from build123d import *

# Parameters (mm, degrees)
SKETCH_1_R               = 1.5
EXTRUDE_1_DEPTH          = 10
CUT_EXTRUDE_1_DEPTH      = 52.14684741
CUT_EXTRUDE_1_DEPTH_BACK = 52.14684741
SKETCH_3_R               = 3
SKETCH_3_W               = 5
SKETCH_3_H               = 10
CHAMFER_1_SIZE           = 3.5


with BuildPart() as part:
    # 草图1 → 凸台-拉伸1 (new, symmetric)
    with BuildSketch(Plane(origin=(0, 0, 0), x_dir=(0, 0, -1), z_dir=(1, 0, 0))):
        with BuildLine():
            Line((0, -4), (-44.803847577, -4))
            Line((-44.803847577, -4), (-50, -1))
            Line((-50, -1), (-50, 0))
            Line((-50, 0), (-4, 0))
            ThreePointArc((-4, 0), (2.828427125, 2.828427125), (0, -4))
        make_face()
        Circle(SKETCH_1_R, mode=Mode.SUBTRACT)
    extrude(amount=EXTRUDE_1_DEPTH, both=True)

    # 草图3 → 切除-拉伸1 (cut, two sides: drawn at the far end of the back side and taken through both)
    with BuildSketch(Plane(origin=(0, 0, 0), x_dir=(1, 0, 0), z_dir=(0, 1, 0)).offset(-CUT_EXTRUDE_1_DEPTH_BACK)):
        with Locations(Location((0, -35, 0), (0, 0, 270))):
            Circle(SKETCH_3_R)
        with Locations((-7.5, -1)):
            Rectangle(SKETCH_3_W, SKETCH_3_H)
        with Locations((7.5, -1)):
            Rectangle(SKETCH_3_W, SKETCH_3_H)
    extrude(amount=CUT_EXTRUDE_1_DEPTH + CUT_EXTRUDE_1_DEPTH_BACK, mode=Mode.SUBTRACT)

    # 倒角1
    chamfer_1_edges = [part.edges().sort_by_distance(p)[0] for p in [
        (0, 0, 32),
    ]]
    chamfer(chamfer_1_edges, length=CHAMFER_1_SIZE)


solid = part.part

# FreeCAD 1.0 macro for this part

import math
import FreeCAD as App
import Part
import Sketcher
from FreeCAD import Vector
Q = App.Units.Quantity


def edges_at(feature, points):
    """Names of the edges that pass closest to the given points."""
    edges = feature.Shape.Edges
    near = lambda p: min(range(len(edges)), key=lambda i: edges[i].distToShape(Part.Vertex(*p))[0])
    return sorted({f"Edge{near(p) + 1}" for p in points})

doc = App.newDocument("Part")
params = doc.addObject("Spreadsheet::Sheet", "Params")
for row, (alias, value) in enumerate([
    ("sketch1_diameter", "3 mm"),
    ("sketch1_radius", "4 mm"),
    ("sketch1_width", "1 mm"),
    ("sketch1_height", "46 mm"),
    ("pad1_length", "20 mm"),
    ("sketch2_diameter", "6 mm"),
    ("sketch2_width", "5 mm"),
    ("sketch2_height", "10 mm"),
    ("chamfer_size", "3.5 mm"),
], start=1):
    params.set(f"A{row}", alias)
    params.set(f"B{row}", "=" + value)
    params.setAlias(f"B{row}", alias)

body = doc.addObject("PartDesign::Body", "Body")

# Sketch on YZ plane
sketch1 = body.newObject("Sketcher::SketchObject", "Sketch")
sketch1.AttachmentSupport = (doc.getObject("YZ_Plane"), [""])
sketch1.MapMode = "FlatFace"
sketch1.addGeometry(Part.LineSegment(Vector(-4, 44.803848, 0), Vector(-4, 0, 0)), False)
sketch1.addGeometry(Part.ArcOfCircle(Part.Circle(Vector(0, 0, 0), Vector(0, 0, 1), 4), math.radians(180), math.radians(450)), False)
sketch1.addGeometry(Part.LineSegment(Vector(0, 4, 0), Vector(0, 50, 0)), False)
sketch1.addGeometry(Part.LineSegment(Vector(0, 50, 0), Vector(-1, 50, 0)), False)
sketch1.addGeometry(Part.LineSegment(Vector(-1, 50, 0), Vector(-4, 44.803848, 0)), False)
sketch1.addGeometry(Part.Circle(Vector(0, 0, 0), Vector(0, 0, 1), 1.5), False)
sketch1.addConstraint(Sketcher.Constraint("Tangent", 0, 2, 1, 1))
sketch1.addConstraint(Sketcher.Constraint("Coincident", 1, 2, 2, 1))
sketch1.addConstraint(Sketcher.Constraint("Coincident", 2, 2, 3, 1))
sketch1.addConstraint(Sketcher.Constraint("Coincident", 3, 2, 4, 1))
sketch1.addConstraint(Sketcher.Constraint("Coincident", 4, 2, 0, 1))
sketch1.addConstraint(Sketcher.Constraint("Vertical", 0))
sketch1.addConstraint(Sketcher.Constraint("Vertical", 2))
sketch1.addConstraint(Sketcher.Constraint("Horizontal", 3))
sketch1.addConstraint(Sketcher.Constraint("Coincident", 1, 3, -1, 1))
sketch1.addConstraint(Sketcher.Constraint("Coincident", 5, 3, -1, 1))
sketch1.addConstraint(Sketcher.Constraint("PointOnObject", 1, 2, -2))
sketch1.addConstraint(Sketcher.Constraint("Diameter", 5, Q("3 mm")))
sketch1.addConstraint(Sketcher.Constraint("Radius", 1, Q("4 mm")))
sketch1.addConstraint(Sketcher.Constraint("DistanceX", 3, 2, 3, 1, Q("1 mm")))
sketch1.addConstraint(Sketcher.Constraint("DistanceY", 2, 1, 2, 2, Q("46 mm")))
sketch1.addConstraint(Sketcher.Constraint("Angle", 4, Q("-120 deg")))
sketch1.setExpression("Constraints[11]", "Params.sketch1_diameter")
sketch1.setExpression("Constraints[12]", "Params.sketch1_radius")
sketch1.setExpression("Constraints[13]", "Params.sketch1_width")
sketch1.setExpression("Constraints[14]", "Params.sketch1_height")
pad1 = body.newObject("PartDesign::Pad", "Pad")
pad1.Profile = sketch1
pad1.setExpression("Length", "Params.pad1_length")
pad1.Midplane = True

# Sketch on XZ plane
sketch2 = body.newObject("Sketcher::SketchObject", "Sketch001")
sketch2.AttachmentSupport = (doc.getObject("XZ_Plane"), [""])
sketch2.MapMode = "FlatFace"
sketch2.addGeometry(Part.Circle(Vector(0, 35, 0), Vector(0, 0, 1), 3), False)
sketch2.addGeometry(Part.LineSegment(Vector(-10, -4, 0), Vector(-10, 6, 0)), False)
sketch2.addGeometry(Part.LineSegment(Vector(-10, 6, 0), Vector(-5, 6, 0)), False)
sketch2.addGeometry(Part.LineSegment(Vector(-5, 6, 0), Vector(-5, -4, 0)), False)
sketch2.addGeometry(Part.LineSegment(Vector(-5, -4, 0), Vector(-10, -4, 0)), False)
sketch2.addGeometry(Part.LineSegment(Vector(5, -4, 0), Vector(5, 6, 0)), False)
sketch2.addGeometry(Part.LineSegment(Vector(5, 6, 0), Vector(10, 6, 0)), False)
sketch2.addGeometry(Part.LineSegment(Vector(10, 6, 0), Vector(10, -4, 0)), False)
sketch2.addGeometry(Part.LineSegment(Vector(10, -4, 0), Vector(5, -4, 0)), False)
sketch2.addConstraint(Sketcher.Constraint("Coincident", 1, 2, 2, 1))
sketch2.addConstraint(Sketcher.Constraint("Coincident", 2, 2, 3, 1))
sketch2.addConstraint(Sketcher.Constraint("Coincident", 3, 2, 4, 1))
sketch2.addConstraint(Sketcher.Constraint("Coincident", 4, 2, 1, 1))
sketch2.addConstraint(Sketcher.Constraint("Coincident", 5, 2, 6, 1))
sketch2.addConstraint(Sketcher.Constraint("Coincident", 6, 2, 7, 1))
sketch2.addConstraint(Sketcher.Constraint("Coincident", 7, 2, 8, 1))
sketch2.addConstraint(Sketcher.Constraint("Coincident", 8, 2, 5, 1))
sketch2.addConstraint(Sketcher.Constraint("Vertical", 1))
sketch2.addConstraint(Sketcher.Constraint("Horizontal", 2))
sketch2.addConstraint(Sketcher.Constraint("Vertical", 3))
sketch2.addConstraint(Sketcher.Constraint("Horizontal", 4))
sketch2.addConstraint(Sketcher.Constraint("Vertical", 5))
sketch2.addConstraint(Sketcher.Constraint("Horizontal", 6))
sketch2.addConstraint(Sketcher.Constraint("Vertical", 7))
sketch2.addConstraint(Sketcher.Constraint("Horizontal", 8))
sketch2.addConstraint(Sketcher.Constraint("Symmetric", 2, 2, 5, 2, -2))
sketch2.addConstraint(Sketcher.Constraint("Symmetric", 4, 2, 7, 2, -2))
sketch2.addConstraint(Sketcher.Constraint("PointOnObject", 0, 3, -2))
sketch2.addConstraint(Sketcher.Constraint("Diameter", 0, Q("6 mm")))
sketch2.addConstraint(Sketcher.Constraint("DistanceX", 2, 1, 2, 2, Q("5 mm")))
sketch2.addConstraint(Sketcher.Constraint("DistanceY", 1, 1, 1, 2, Q("10 mm")))
sketch2.addConstraint(Sketcher.Constraint("DistanceY", -1, 1, 0, 3, Q("35 mm")))
sketch2.addConstraint(Sketcher.Constraint("DistanceX", 1, 2, -1, 1, Q("10 mm")))
sketch2.addConstraint(Sketcher.Constraint("DistanceY", -1, 1, 1, 2, Q("6 mm")))
sketch2.setExpression("Constraints[19]", "Params.sketch2_diameter")
sketch2.setExpression("Constraints[20]", "Params.sketch2_width")
sketch2.setExpression("Constraints[21]", "Params.sketch2_height")
pocket1 = body.newObject("PartDesign::Pocket", "Pocket")
pocket1.Profile = sketch2
pocket1.Type = "ThroughAll"
pocket1.Midplane = True
doc.recompute()

chamfer = body.newObject("PartDesign::Chamfer", "Chamfer")
chamfer.Base = (pocket1, edges_at(pocket1, [(0, 0, 32)]))
chamfer.setExpression("Size", "Params.chamfer_size")

doc.recompute()
